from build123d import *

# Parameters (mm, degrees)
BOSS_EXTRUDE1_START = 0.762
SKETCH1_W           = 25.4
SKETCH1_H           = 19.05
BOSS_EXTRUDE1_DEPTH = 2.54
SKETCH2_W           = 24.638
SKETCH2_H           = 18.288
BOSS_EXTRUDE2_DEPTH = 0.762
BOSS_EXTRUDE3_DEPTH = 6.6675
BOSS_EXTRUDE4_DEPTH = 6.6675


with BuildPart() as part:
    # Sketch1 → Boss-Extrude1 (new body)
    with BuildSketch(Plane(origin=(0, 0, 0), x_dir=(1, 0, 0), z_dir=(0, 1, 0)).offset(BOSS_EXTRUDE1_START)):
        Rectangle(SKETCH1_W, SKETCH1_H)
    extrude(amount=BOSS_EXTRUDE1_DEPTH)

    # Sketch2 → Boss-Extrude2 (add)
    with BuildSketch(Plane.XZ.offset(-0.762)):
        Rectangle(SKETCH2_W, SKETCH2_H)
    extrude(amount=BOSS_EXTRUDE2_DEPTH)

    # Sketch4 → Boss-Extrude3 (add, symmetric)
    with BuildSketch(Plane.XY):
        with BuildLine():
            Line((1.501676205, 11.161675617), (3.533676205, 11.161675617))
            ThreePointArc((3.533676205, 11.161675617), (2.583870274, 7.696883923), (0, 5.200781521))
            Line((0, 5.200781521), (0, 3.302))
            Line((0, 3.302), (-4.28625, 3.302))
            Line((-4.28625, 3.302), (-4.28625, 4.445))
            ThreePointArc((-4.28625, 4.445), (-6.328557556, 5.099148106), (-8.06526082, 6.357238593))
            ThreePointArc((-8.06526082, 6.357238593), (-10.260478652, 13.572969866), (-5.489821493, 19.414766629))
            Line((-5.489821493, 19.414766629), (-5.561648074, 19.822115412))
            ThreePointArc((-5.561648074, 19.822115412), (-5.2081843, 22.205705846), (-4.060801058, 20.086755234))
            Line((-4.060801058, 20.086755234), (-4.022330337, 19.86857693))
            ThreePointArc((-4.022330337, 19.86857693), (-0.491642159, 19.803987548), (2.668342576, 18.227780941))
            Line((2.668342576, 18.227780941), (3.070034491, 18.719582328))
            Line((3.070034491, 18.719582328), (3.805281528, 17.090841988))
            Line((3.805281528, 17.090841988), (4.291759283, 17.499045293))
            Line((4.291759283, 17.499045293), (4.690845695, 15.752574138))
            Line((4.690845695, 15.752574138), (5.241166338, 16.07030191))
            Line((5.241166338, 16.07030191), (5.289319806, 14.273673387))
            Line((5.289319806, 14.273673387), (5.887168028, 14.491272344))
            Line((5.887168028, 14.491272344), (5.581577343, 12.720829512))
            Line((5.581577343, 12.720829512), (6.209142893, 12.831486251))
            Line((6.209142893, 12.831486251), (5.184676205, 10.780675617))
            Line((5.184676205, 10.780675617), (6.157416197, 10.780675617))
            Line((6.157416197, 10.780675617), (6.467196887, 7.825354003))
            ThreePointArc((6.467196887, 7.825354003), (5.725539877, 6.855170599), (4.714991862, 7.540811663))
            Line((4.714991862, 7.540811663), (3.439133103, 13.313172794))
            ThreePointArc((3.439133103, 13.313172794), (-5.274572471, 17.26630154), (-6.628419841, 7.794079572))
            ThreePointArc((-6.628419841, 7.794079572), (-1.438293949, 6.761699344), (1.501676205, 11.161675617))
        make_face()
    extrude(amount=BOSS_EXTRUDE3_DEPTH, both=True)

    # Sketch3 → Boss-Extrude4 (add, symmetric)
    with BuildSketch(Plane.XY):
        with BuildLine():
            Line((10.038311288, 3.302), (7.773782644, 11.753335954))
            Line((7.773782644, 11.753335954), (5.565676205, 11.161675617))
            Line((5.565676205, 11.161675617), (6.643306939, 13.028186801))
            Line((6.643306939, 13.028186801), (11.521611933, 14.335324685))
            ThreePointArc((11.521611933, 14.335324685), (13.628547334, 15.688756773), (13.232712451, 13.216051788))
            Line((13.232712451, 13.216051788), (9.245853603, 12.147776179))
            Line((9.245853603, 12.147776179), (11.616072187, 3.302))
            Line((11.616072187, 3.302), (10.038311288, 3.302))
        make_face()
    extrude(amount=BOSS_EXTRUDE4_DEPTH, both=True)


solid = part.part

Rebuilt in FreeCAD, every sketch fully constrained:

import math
import FreeCAD as App
import Part
import Sketcher

V = App.Vector
Q = App.Units.Quantity


def add_polygon(sketch, points):
    """Adds a closed chain of lines whose ends are joined by coincident constraints."""
    first, n = sketch.GeometryCount, len(points)
    for a, b in zip(points, points[1:] + points[:1]):
        sketch.addGeometry(Part.LineSegment(App.Vector(*a, 0), App.Vector(*b, 0)), False)
    for i in range(n):
        sketch.addConstraint(Sketcher.Constraint("Coincident", first + i, 2, first + (i + 1) % n, 1))

doc = App.newDocument("Part")
body = doc.addObject("PartDesign::Body", "Body")

sketch1 = body.newObject("Sketcher::SketchObject", "Sketch")
sketch1.AttachmentSupport = (doc.getObject("XZ_Plane"), [""])
sketch1.MapMode = "FlatFace"
sketch1.AttachmentOffset = App.Placement(V(0, 0, -0.03 * 25.4), App.Rotation())
add_polygon(sketch1, [(-13, -10), (-13, 10), (13, 10), (13, -10)])
sketch1.addConstraint(Sketcher.Constraint("Vertical", 0))
sketch1.addConstraint(Sketcher.Constraint("Horizontal", 1))
sketch1.addConstraint(Sketcher.Constraint("Vertical", 2))
sketch1.addConstraint(Sketcher.Constraint("Horizontal", 3))
sketch1.addConstraint(Sketcher.Constraint("Symmetric", 0, 2, 2, 2, -1, 1))
sketch1.addConstraint(Sketcher.Constraint("DistanceX", 1, 1, 1, 2, Q("1 in")))
sketch1.addConstraint(Sketcher.Constraint("DistanceY", 0, 1, 0, 2, Q("0.75 in")))
pad1 = body.newObject("PartDesign::Pad", "Pad")
pad1.Profile = sketch1
pad1.Length = Q("0.1 in")
pad1.Reversed = True

sketch2 = body.newObject("Sketcher::SketchObject", "Sketch001")
sketch2.AttachmentSupport = (doc.getObject("XZ_Plane"), [""])
sketch2.MapMode = "FlatFace"
sketch2.AttachmentOffset = App.Placement(V(0, 0, -0.03 * 25.4), App.Rotation())
add_polygon(sketch2, [(-12, 9), (-12, -9), (12, -9), (12, 9)])
sketch2.addConstraint(Sketcher.Constraint("Vertical", 0))
sketch2.addConstraint(Sketcher.Constraint("Horizontal", 1))
sketch2.addConstraint(Sketcher.Constraint("Vertical", 2))
sketch2.addConstraint(Sketcher.Constraint("Horizontal", 3))
sketch2.addConstraint(Sketcher.Constraint("Symmetric", 0, 2, 2, 2, -1, 1))
sketch2.addConstraint(Sketcher.Constraint("DistanceX", 1, 1, 1, 2, Q("0.97 in")))
sketch2.addConstraint(Sketcher.Constraint("DistanceY", 0, 2, 0, 1, Q("0.72 in")))
pad2 = body.newObject("PartDesign::Pad", "Pad001")
pad2.Profile = sketch2
pad2.Length = Q("0.03 in")

sketch3 = body.newObject("Sketcher::SketchObject", "Sketch002")
sketch3.AttachmentSupport = (doc.getObject("XY_Plane"), [""])
sketch3.MapMode = "FlatFace"
sketch3.addGeometry(Part.LineSegment(V(3.53, 11.16, 0), V(1.5, 11.16, 0)), False)
sketch3.addGeometry(Part.ArcOfCircle(Part.Circle(V(-3.26, 11.16, 0), V(0, 0, 1), 4.76), math.radians(-135), math.radians(0)), False)
sketch3.addGeometry(Part.ArcOfCircle(Part.Circle(V(-2.4, 12.02, 0), V(0, 0, 1), 5.98), math.radians(12), math.radians(225)), False)
sketch3.addGeometry(Part.LineSegment(V(3.44, 13.31, 0), V(4.71, 7.54, 0)), False)
sketch3.addGeometry(Part.ArcOfCircle(Part.Circle(V(5.58, 7.73, 0), V(0, 0, 1), 0.89), math.radians(-168), math.radians(6)), False)
sketch3.addGeometry(Part.LineSegment(V(6.47, 7.83, 0), V(6.16, 10.78, 0)), False)
sketch3.addGeometry(Part.LineSegment(V(6.16, 10.78, 0), V(5.18, 10.78, 0)), False)
sketch3.addGeometry(Part.LineSegment(V(5.18, 10.78, 0), V(6.21, 12.83, 0)), False)
sketch3.addGeometry(Part.LineSegment(V(6.21, 12.83, 0), V(5.58, 12.72, 0)), False)
sketch3.addGeometry(Part.LineSegment(V(5.58, 12.72, 0), V(5.89, 14.49, 0)), False)
sketch3.addGeometry(Part.LineSegment(V(5.89, 14.49, 0), V(5.29, 14.27, 0)), False)
sketch3.addGeometry(Part.LineSegment(V(5.29, 14.27, 0), V(5.24, 16.07, 0)), False)
sketch3.addGeometry(Part.LineSegment(V(5.24, 16.07, 0), V(4.69, 15.75, 0)), False)
sketch3.addGeometry(Part.LineSegment(V(4.69, 15.75, 0), V(4.29, 17.5, 0)), False)
sketch3.addGeometry(Part.LineSegment(V(4.29, 17.5, 0), V(3.81, 17.09, 0)), False)
sketch3.addGeometry(Part.LineSegment(V(3.81, 17.09, 0), V(3.07, 18.72, 0)), False)
sketch3.addGeometry(Part.LineSegment(V(3.07, 18.72, 0), V(2.67, 18.23, 0)), False)
sketch3.addGeometry(Part.ArcOfCircle(Part.Circle(V(-2.4, 12.02, 0), V(0, 0, 1), 8.01), math.radians(51), math.radians(102)), False)
sketch3.addGeometry(Part.LineSegment(V(-4.02, 19.87, 0), V(-4.06, 20.09, 0)), False)
sketch3.addGeometry(Part.ArcOfCircle(Part.Circle(V(-4.99, 20.95, 0), V(0, 0, 1), 1.27), math.radians(-43), math.radians(243)), False)
sketch3.addGeometry(Part.LineSegment(V(-5.56, 19.82, 0), V(-5.49, 19.41, 0)), False)
sketch3.addGeometry(Part.ArcOfCircle(Part.Circle(V(-2.4, 12.02, 0), V(0, 0, 1), 8.01), math.radians(113), math.radians(225)), False)
sketch3.addGeometry(Part.ArcOfCircle(Part.Circle(V(-3.26, 11.16, 0), V(0, 0, 1), 6.79), math.radians(-135), math.radians(-99)), False)
sketch3.addGeometry(Part.LineSegment(V(-4.29, 4.45, 0), V(-4.29, 3.3, 0)), False)
sketch3.addGeometry(Part.LineSegment(V(-4.29, 3.3, 0), V(0, 3.3, 0)), False)
sketch3.addGeometry(Part.LineSegment(V(0, 3.3, 0), V(0, 5.2, 0)), False)
sketch3.addGeometry(Part.ArcOfCircle(Part.Circle(V(-3.26, 11.16, 0), V(0, 0, 1), 6.79), math.radians(-61), math.radians(0)), False)
sketch3.addConstraint(Sketcher.Constraint("Coincident", 0, 2, 1, 2))
sketch3.addConstraint(Sketcher.Constraint("Tangent", 1, 1, 2, 2))
sketch3.addConstraint(Sketcher.Constraint("Tangent", 2, 1, 3, 1))
sketch3.addConstraint(Sketcher.Constraint("Tangent", 3, 2, 4, 1))
sketch3.addConstraint(Sketcher.Constraint("Tangent", 4, 2, 5, 1))
sketch3.addConstraint(Sketcher.Constraint("Coincident", 5, 2, 6, 1))
sketch3.addConstraint(Sketcher.Constraint("Coincident", 6, 2, 7, 1))
sketch3.addConstraint(Sketcher.Constraint("Coincident", 7, 2, 8, 1))
sketch3.addConstraint(Sketcher.Constraint("Coincident", 8, 2, 9, 1))
sketch3.addConstraint(Sketcher.Constraint("Coincident", 9, 2, 10, 1))
sketch3.addConstraint(Sketcher.Constraint("Coincident", 10, 2, 11, 1))
sketch3.addConstraint(Sketcher.Constraint("Coincident", 11, 2, 12, 1))
sketch3.addConstraint(Sketcher.Constraint("Coincident", 12, 2, 13, 1))
sketch3.addConstraint(Sketcher.Constraint("Coincident", 13, 2, 14, 1))
sketch3.addConstraint(Sketcher.Constraint("Coincident", 14, 2, 15, 1))
sketch3.addConstraint(Sketcher.Constraint("Coincident", 15, 2, 16, 1))
sketch3.addConstraint(Sketcher.Constraint("Coincident", 16, 2, 17, 1))
sketch3.addConstraint(Sketcher.Constraint("Coincident", 17, 2, 18, 1))
sketch3.addConstraint(Sketcher.Constraint("Coincident", 18, 2, 19, 1))
sketch3.addConstraint(Sketcher.Constraint("Coincident", 19, 2, 20, 1))
sketch3.addConstraint(Sketcher.Constraint("Coincident", 20, 2, 21, 1))
sketch3.addConstraint(Sketcher.Constraint("Tangent", 21, 2, 22, 1))
sketch3.addConstraint(Sketcher.Constraint("Coincident", 22, 2, 23, 1))
sketch3.addConstraint(Sketcher.Constraint("Coincident", 23, 2, 24, 1))
sketch3.addConstraint(Sketcher.Constraint("Coincident", 24, 2, 25, 1))
sketch3.addConstraint(Sketcher.Constraint("Coincident", 25, 2, 26, 1))
sketch3.addConstraint(Sketcher.Constraint("Coincident", 26, 2, 0, 1))
sketch3.addConstraint(Sketcher.Constraint("Horizontal", 0))
sketch3.addConstraint(Sketcher.Constraint("Horizontal", 6))
sketch3.addConstraint(Sketcher.Constraint("Vertical", 23))
sketch3.addConstraint(Sketcher.Constraint("Horizontal", 24))
sketch3.addConstraint(Sketcher.Constraint("Vertical", 25))
sketch3.addConstraint(Sketcher.Constraint("Coincident", 17, 3, 2, 3))
sketch3.addConstraint(Sketcher.Constraint("Coincident", 21, 3, 2, 3))
sketch3.addConstraint(Sketcher.Constraint("Coincident", 22, 3, 1, 3))
sketch3.addConstraint(Sketcher.Constraint("Coincident", 26, 3, 1, 3))
sketch3.addConstraint(Sketcher.Constraint("Equal", 17, 21))
sketch3.addConstraint(Sketcher.Constraint("Equal", 22, 26))
sketch3.addConstraint(Sketcher.Constraint("PointOnObject", 24, 2, -2))
sketch3.addConstraint(Sketcher.Constraint("Perpendicular", 8, 18))
sketch3.addConstraint(Sketcher.Constraint("Parallel", 18, 20))
sketch3.addConstraint(Sketcher.Constraint("Horizontal", 26, 3, 0, 2))
sketch3.addConstraint(Sketcher.Constraint("Radius", 19, Q("0.05 in")))
sketch3.addConstraint(Sketcher.Constraint("Angle", 8, Q("-170 deg")))
sketch3.addConstraint(Sketcher.Constraint("Angle", 10, Q("-160 deg")))
sketch3.addConstraint(Sketcher.Constraint("Angle", 12, Q("-150 deg")))
sketch3.addConstraint(Sketcher.Constraint("Angle", 14, Q("-140 deg")))
sketch3.addConstraint(Sketcher.Constraint("Radius", 1, Q("0.1875 in")))
sketch3.addConstraint(Sketcher.Constraint("Radius", 4, Q("0.035 in")))
sketch3.addConstraint(Sketcher.Constraint("DistanceX", 0, 2, 0, 1, Q("0.08 in")))
sketch3.addConstraint(Sketcher.Constraint("DistanceY", 23, 2, 23, 1, Q("0.045 in")))
sketch3.addConstraint(Sketcher.Constraint("DistanceY", -1, 1, 23, 2, Q("0.13 in")))
sketch3.addConstraint(Sketcher.Constraint("DistanceY", 4, 3, 5, 2, Q("0.12 in")))
sketch3.addConstraint(Sketcher.Constraint("Distance", 16, Q("0.025 in")))
sketch3.addConstraint(Sketcher.Constraint("DistanceY", -1, 1, 19, 3, Q("0.825 in")))
sketch3.addConstraint(Sketcher.Constraint("Radius", 2, Q("5.979991 mm")))
sketch3.addConstraint(Sketcher.Constraint("DistanceY", 4, 3, 1, 3, Q("0.135 in")))
sketch3.addConstraint(Sketcher.Constraint("DistanceX", 26, 2, 6, 2, Q("0.065 in")))
sketch3.addConstraint(Sketcher.Constraint("DistanceX", 6, 2, 6, 1, Q("0.97274 mm")))
sketch3.addConstraint(Sketcher.Constraint("DistanceX", 24, 1, 24, 2, Q("4.28625 mm")))
sketch3.addConstraint(Sketcher.Constraint("DistanceY", 25, 1, 25, 2, Q("1.898782 mm")))
sketch3.addConstraint(Sketcher.Constraint("DistanceY", -1, 1, 11, 2, Q("16.070302 mm")))
sketch3.addConstraint(Sketcher.Constraint("DistanceX", 18, 2, -1, 1, Q("4.060801 mm")))
sketch3.addConstraint(Sketcher.Constraint("DistanceY", 17, 3, 2, 1, Q("1.290601 mm")))
sketch3.addConstraint(Sketcher.Constraint("DistanceX", 6, 2, 8, 2, Q("0.396901 mm")))
sketch3.addConstraint(Sketcher.Constraint("DistanceY", 2, 1, 9, 2, Q("1.1781 mm")))
sketch3.addConstraint(Sketcher.Constraint("DistanceY", 10, 2, 9, 2, Q("0.217599 mm")))
sketch3.addConstraint(Sketcher.Constraint("DistanceX", 11, 2, 9, 2, Q("0.646002 mm")))
sketch3.addConstraint(Sketcher.Constraint("DistanceY", 10, 2, 12, 2, Q("1.478901 mm")))
sketch3.addConstraint(Sketcher.Constraint("DistanceY", 16, 2, 15, 2, Q("0.491801 mm")))
sketch3.addConstraint(Sketcher.Constraint("Distance", 3, Q("5.911681 mm")))
sketch3.addConstraint(Sketcher.Constraint("Distance", 13, Q("1.791489 mm")))
sketch3.addConstraint(Sketcher.Constraint("Distance", 14, Q("0.635052 mm")))
sketch3.addConstraint(Sketcher.Constraint("DistanceX", 19, 3, -1, 1, Q("4.987651 mm")))
sketch3.addConstraint(Sketcher.Constraint("DistanceY", -1, 1, 8, 2, Q("12.72083 mm")))
sketch3.addConstraint(Sketcher.Constraint("DistanceX", -1, 1, 9, 2, Q("5.887168 mm")))
sketch3.addConstraint(Sketcher.Constraint("DistanceX", -1, 1, 13, 2, Q("4.291759 mm")))
sketch3.addConstraint(Sketcher.Constraint("DistanceY", -1, 1, 16, 2, Q("18.227781 mm")))
sketch3.addConstraint(Sketcher.Constraint("DistanceX", 19, 2, -1, 1, Q("5.561648 mm")))
sketch3.addConstraint(Sketcher.Constraint("DistanceY", 5, 2, 7, 2, Q("2.050811 mm")))
pad3 = body.newObject("PartDesign::Pad", "Pad002")
pad3.Profile = sketch3
pad3.Length = Q("0.525 in")
pad3.Midplane = True

sketch4 = body.newObject("Sketcher::SketchObject", "Sketch003")
sketch4.AttachmentSupport = (doc.getObject("XY_Plane"), [""])
sketch4.MapMode = "FlatFace"
sketch4.addGeometry(Part.LineSegment(V(7.8, 11.8, 0), V(10, 3.3, 0)), False)
sketch4.addGeometry(Part.LineSegment(V(10, 3.3, 0), V(11.6, 3.3, 0)), False)
sketch4.addGeometry(Part.LineSegment(V(11.6, 3.3, 0), V(9.2, 12.1, 0)), False)
sketch4.addGeometry(Part.LineSegment(V(9.2, 12.1, 0), V(13.2, 13.2, 0)), False)
sketch4.addGeometry(Part.ArcOfCircle(Part.Circle(V(12.9, 14.5, 0), V(0, 0, 1), 1.4), math.radians(-75), math.radians(189)), False)
sketch4.addGeometry(Part.LineSegment(V(11.5, 14.3, 0), V(6.6, 13, 0)), False)
sketch4.addGeometry(Part.LineSegment(V(6.6, 13, 0), V(5.6, 11.2, 0)), False)
sketch4.addGeometry(Part.LineSegment(V(5.6, 11.2, 0), V(7.8, 11.8, 0)), False)
sketch4.addConstraint(Sketcher.Constraint("Coincident", 0, 2, 1, 1))
sketch4.addConstraint(Sketcher.Constraint("Coincident", 1, 2, 2, 1))
sketch4.addConstraint(Sketcher.Constraint("Coincident", 2, 2, 3, 1))
sketch4.addConstraint(Sketcher.Constraint("Tangent", 3, 2, 4, 1))
sketch4.addConstraint(Sketcher.Constraint("Coincident", 4, 2, 5, 1))
sketch4.addConstraint(Sketcher.Constraint("Coincident", 5, 2, 6, 1))
sketch4.addConstraint(Sketcher.Constraint("Coincident", 6, 2, 7, 1))
sketch4.addConstraint(Sketcher.Constraint("Coincident", 7, 2, 0, 1))
sketch4.addConstraint(Sketcher.Constraint("Horizontal", 1))
sketch4.addConstraint(Sketcher.Constraint("Parallel", 0, 2))
sketch4.addConstraint(Sketcher.Constraint("Perpendicular", 2, 3))
sketch4.addConstraint(Sketcher.Constraint("Parallel", 3, 5))
sketch4.addConstraint(Sketcher.Constraint("Parallel", 5, 7))
sketch4.addConstraint(Sketcher.Constraint("Angle", 0, Q("-75 deg")))
sketch4.addConstraint(Sketcher.Constraint("Angle", 6, Q("-120 deg")))
sketch4.addConstraint(Sketcher.Constraint("Radius", 4, Q("0.054 in")))
sketch4.addConstraint(Sketcher.Constraint("Distance", 7, Q("0.09 in")))
sketch4.addConstraint(Sketcher.Constraint("DistanceY", -1, 1, 0, 2, Q("0.13 in")))
sketch4.addConstraint(Sketcher.Constraint("Distance", 3, Q("0.1625 in")))
sketch4.addConstraint(Sketcher.Constraint("DistanceX", 1, 1, 1, 2, Q("1.577761 mm")))
sketch4.addConstraint(Sketcher.Constraint("DistanceX", 0, 2, 3, 2, Q("3.194401 mm")))
sketch4.addConstraint(Sketcher.Constraint("DistanceX", 4, 2, 3, 2, Q("1.711101 mm")))
sketch4.addConstraint(Sketcher.Constraint("DistanceY", 6, 2, 2, 2, Q("0.986101 mm")))
sketch4.addConstraint(Sketcher.Constraint("DistanceX", -1, 1, 0, 2, Q("10.038311 mm")))
pad4 = body.newObject("PartDesign::Pad", "Pad003")
pad4.Profile = sketch4
pad4.Length = Q("0.525 in")
pad4.Midplane = True

doc.recompute()
